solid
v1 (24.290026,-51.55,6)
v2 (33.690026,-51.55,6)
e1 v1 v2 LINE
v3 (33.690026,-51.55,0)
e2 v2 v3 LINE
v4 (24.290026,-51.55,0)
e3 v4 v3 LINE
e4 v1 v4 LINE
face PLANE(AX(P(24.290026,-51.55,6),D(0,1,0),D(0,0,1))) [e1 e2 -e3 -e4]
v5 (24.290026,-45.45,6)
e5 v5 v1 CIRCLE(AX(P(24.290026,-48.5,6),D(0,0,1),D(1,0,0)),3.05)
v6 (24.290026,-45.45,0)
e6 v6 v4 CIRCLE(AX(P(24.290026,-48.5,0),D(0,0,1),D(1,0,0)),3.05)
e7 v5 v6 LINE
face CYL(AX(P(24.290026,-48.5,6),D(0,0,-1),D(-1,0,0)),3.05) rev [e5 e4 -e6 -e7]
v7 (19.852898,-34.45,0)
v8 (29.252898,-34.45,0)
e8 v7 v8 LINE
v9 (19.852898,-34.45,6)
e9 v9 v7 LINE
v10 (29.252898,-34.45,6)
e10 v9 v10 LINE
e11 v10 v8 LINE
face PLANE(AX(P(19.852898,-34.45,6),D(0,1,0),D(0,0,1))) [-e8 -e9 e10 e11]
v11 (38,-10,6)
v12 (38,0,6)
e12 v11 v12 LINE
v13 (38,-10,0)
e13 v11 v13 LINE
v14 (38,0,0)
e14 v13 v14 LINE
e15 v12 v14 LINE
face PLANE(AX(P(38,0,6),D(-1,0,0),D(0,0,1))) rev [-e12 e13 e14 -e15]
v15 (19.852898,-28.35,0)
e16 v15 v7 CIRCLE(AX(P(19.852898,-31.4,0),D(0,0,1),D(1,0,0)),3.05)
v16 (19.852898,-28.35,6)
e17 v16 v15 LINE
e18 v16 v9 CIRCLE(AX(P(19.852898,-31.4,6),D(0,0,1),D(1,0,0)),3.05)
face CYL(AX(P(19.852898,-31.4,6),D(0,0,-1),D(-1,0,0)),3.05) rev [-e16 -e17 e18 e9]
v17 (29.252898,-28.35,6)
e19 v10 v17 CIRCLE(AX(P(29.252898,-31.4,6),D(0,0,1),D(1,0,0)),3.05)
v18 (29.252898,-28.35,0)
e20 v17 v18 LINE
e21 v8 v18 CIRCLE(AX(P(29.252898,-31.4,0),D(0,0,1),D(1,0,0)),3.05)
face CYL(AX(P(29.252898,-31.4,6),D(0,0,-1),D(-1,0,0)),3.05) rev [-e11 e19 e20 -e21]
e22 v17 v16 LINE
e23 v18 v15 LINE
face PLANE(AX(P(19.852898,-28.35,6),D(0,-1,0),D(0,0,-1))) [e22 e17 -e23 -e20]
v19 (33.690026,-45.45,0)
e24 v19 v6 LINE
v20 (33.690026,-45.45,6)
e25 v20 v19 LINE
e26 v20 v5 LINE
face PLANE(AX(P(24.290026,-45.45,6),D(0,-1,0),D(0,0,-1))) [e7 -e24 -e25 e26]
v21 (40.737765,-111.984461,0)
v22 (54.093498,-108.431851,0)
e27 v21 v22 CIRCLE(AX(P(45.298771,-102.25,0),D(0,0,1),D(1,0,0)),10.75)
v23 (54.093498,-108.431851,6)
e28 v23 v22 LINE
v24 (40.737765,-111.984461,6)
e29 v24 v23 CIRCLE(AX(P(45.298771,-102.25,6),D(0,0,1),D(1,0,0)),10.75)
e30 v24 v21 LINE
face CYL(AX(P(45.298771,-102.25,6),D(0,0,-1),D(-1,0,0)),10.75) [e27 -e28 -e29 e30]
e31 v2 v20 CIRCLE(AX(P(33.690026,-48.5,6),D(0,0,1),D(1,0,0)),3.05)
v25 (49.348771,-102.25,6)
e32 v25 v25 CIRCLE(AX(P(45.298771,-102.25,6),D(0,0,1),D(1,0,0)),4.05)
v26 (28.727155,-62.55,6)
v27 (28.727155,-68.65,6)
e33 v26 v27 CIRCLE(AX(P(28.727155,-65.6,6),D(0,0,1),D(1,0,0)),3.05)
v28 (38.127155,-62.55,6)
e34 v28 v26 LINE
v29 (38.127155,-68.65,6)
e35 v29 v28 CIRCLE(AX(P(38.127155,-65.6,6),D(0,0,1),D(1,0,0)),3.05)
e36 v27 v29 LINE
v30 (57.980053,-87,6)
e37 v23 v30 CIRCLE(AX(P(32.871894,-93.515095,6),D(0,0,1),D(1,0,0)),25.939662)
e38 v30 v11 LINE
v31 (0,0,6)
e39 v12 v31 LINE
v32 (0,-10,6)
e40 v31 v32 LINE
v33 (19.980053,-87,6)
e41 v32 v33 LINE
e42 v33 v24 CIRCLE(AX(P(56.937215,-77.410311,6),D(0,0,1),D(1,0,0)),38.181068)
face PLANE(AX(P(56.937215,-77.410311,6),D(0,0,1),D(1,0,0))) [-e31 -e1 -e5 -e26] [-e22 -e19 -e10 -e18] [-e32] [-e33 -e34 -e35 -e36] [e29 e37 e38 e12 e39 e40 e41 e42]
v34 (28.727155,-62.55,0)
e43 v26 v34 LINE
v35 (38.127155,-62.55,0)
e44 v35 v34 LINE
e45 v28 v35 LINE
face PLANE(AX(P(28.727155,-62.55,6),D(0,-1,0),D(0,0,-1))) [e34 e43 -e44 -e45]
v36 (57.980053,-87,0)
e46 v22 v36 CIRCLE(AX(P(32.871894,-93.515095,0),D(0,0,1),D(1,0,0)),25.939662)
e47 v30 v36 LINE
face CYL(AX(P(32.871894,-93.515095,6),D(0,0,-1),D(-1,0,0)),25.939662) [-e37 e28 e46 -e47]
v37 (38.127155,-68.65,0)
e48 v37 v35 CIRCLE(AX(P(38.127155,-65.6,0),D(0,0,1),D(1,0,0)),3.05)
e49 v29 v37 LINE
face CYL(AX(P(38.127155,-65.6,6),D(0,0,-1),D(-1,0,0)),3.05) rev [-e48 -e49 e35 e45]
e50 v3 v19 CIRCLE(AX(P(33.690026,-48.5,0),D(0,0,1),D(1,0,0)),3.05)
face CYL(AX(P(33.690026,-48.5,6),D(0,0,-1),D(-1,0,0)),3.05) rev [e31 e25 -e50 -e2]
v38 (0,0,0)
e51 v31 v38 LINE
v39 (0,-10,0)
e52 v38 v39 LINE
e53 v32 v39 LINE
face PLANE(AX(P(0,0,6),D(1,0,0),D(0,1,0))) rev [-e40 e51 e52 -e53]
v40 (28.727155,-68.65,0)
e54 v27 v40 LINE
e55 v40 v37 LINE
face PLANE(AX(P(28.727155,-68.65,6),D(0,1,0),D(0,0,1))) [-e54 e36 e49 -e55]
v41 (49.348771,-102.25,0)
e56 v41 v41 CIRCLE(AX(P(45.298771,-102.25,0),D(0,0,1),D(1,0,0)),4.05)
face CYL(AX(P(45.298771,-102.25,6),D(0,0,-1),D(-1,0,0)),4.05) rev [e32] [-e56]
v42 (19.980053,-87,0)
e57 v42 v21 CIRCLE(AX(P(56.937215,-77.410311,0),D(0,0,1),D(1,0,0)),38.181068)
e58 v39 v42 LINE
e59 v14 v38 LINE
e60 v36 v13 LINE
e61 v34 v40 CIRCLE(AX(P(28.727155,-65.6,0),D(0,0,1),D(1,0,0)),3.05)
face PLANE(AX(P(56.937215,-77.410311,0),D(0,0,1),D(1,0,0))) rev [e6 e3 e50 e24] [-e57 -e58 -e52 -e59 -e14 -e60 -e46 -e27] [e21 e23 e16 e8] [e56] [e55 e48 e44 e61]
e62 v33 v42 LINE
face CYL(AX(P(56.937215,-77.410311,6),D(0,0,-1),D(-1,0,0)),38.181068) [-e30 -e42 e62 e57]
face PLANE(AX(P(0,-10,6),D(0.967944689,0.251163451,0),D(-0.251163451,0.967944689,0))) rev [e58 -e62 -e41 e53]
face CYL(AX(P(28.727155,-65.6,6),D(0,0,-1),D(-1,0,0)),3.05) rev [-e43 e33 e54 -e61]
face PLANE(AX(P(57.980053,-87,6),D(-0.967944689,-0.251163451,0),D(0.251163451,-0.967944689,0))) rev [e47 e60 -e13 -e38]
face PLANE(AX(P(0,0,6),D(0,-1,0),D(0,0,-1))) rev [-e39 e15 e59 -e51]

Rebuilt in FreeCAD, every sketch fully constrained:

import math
import FreeCAD as App
import Part
import Sketcher
from FreeCAD import Vector

doc = App.newDocument("Part")
body = doc.addObject("PartDesign::Body", "Body")

# Sketch on XY plane
sketch1 = body.newObject("Sketcher::SketchObject", "Sketch")
sketch1.AttachmentSupport = (doc.getObject("XY_Plane"), [""])
sketch1.MapMode = "FlatFace"
sketch1.addGeometry([
    Part.LineSegment(Vector(38, 0, 0), Vector(0, 0, 0)),  # 0
    Part.LineSegment(Vector(0, 0, 0), Vector(0, -10, 0)),  # 1
    Part.LineSegment(Vector(0, -10, 0), Vector(20, -87, 0)),  # 2
    Part.ArcOfCircle(Part.Circle(Vector(56.9, -77.4, 0), Vector(0, 0, 1), 38.2), math.radians(-165), math.radians(-115)),  # 3
    Part.ArcOfCircle(Part.Circle(Vector(45.3, -102.2, 0), Vector(0, 0, 1), 10.8), math.radians(-115), math.radians(-35)),  # 4
    Part.ArcOfCircle(Part.Circle(Vector(32.9, -93.5, 0), Vector(0, 0, 1), 25.9), math.radians(-35), math.radians(15)),  # 5
    Part.LineSegment(Vector(58, -87, 0), Vector(38, -10, 0)),  # 6
    Part.LineSegment(Vector(38, -10, 0), Vector(38, 0, 0)),  # 7
    Part.Circle(Vector(45.3, -102.2, 0), Vector(0, 0, 1), 4),  # 8
    Part.LineSegment(Vector(28.7, -62.5, 0), Vector(38.1, -62.5, 0)),  # 9
    Part.ArcOfCircle(Part.Circle(Vector(38.1, -65.6, 0), Vector(0, 0, 1), 3), math.radians(-90), math.radians(90)),  # 10
    Part.LineSegment(Vector(38.1, -68.7, 0), Vector(28.7, -68.7, 0)),  # 11
    Part.ArcOfCircle(Part.Circle(Vector(28.7, -65.6, 0), Vector(0, 0, 1), 3), math.radians(90), math.radians(270)),  # 12
    Part.LineSegment(Vector(24.3, -45.5, 0), Vector(33.7, -45.5, 0)),  # 13
    Part.ArcOfCircle(Part.Circle(Vector(33.7, -48.5, 0), Vector(0, 0, 1), 3), math.radians(-90), math.radians(90)),  # 14
    Part.LineSegment(Vector(33.7, -51.5, 0), Vector(24.3, -51.5, 0)),  # 15
    Part.ArcOfCircle(Part.Circle(Vector(24.3, -48.5, 0), Vector(0, 0, 1), 3), math.radians(90), math.radians(270)),  # 16
    Part.LineSegment(Vector(19.9, -28.4, 0), Vector(29.3, -28.4, 0)),  # 17
    Part.ArcOfCircle(Part.Circle(Vector(29.3, -31.4, 0), Vector(0, 0, 1), 3), math.radians(-90), math.radians(90)),  # 18
    Part.LineSegment(Vector(29.3, -34.5, 0), Vector(19.9, -34.5, 0)),  # 19
    Part.ArcOfCircle(Part.Circle(Vector(19.9, -31.4, 0), Vector(0, 0, 1), 3), math.radians(90), math.radians(270)),  # 20
], False)
sketch1.addConstraint([
    Sketcher.Constraint("Coincident", 0, 2, 1, 1),
    Sketcher.Constraint("Coincident", 1, 2, 2, 1),
    Sketcher.Constraint("Tangent", 2, 2, 3, 1),
    Sketcher.Constraint("Tangent", 3, 2, 4, 1),
    Sketcher.Constraint("Tangent", 4, 2, 5, 1),
    Sketcher.Constraint("Tangent", 5, 2, 6, 1),
    Sketcher.Constraint("Coincident", 6, 2, 7, 1),
    Sketcher.Constraint("Coincident", 7, 2, 0, 1),
    Sketcher.Constraint("Tangent", 9, 2, 10, 2),
    Sketcher.Constraint("Tangent", 10, 1, 11, 1),
    Sketcher.Constraint("Tangent", 11, 2, 12, 2),
    Sketcher.Constraint("Tangent", 12, 1, 9, 1),
    Sketcher.Constraint("Tangent", 13, 2, 14, 2),
    Sketcher.Constraint("Tangent", 14, 1, 15, 1),
    Sketcher.Constraint("Tangent", 15, 2, 16, 2),
    Sketcher.Constraint("Tangent", 16, 1, 13, 1),
    Sketcher.Constraint("Tangent", 17, 2, 18, 2),
    Sketcher.Constraint("Tangent", 18, 1, 19, 1),
    Sketcher.Constraint("Tangent", 19, 2, 20, 2),
    Sketcher.Constraint("Tangent", 20, 1, 17, 1),
    Sketcher.Constraint("Horizontal", 0),
    Sketcher.Constraint("Vertical", 1),
    Sketcher.Constraint("Vertical", 7),
    Sketcher.Constraint("Horizontal", 9),
    Sketcher.Constraint("Horizontal", 11),
    Sketcher.Constraint("Horizontal", 13),
    Sketcher.Constraint("Horizontal", 15),
    Sketcher.Constraint("Horizontal", 17),
    Sketcher.Constraint("Horizontal", 19),
    Sketcher.Constraint("Coincident", 0, 2, -1, 1),
    Sketcher.Constraint("Coincident", 8, 3, 4, 3),
    Sketcher.Constraint("Equal", 12, 14),
    Sketcher.Constraint("Equal", 16, 18),
    Sketcher.Constraint("Parallel", 2, 6),
    Sketcher.Constraint("Horizontal", 2, 2, 5, 2),
    Sketcher.Constraint("Horizontal", 1, 2, 6, 2),
    Sketcher.Constraint("Equal", 11, 13),
    Sketcher.Constraint("Equal", 15, 17),
    Sketcher.Constraint("Diameter", 8, 8.1),
    Sketcher.Constraint("DistanceX", 0, 2, 0, 1, 38.0),
    Sketcher.Constraint("DistanceY", 1, 2, 1, 1, 10.0),
    Sketcher.Constraint("Radius", 4, 10.75),
    Sketcher.Constraint("Radius", 10, 3.05),
    Sketcher.Constraint("DistanceX", 9, 1, 9, 2, 9.4),
    Sketcher.Constraint("DistanceY", 2, 2, -1, 1, 87.0),
    Sketcher.Constraint("DistanceY", 9, 2, 14, 1, 11.0),
    Sketcher.Constraint("DistanceY", 13, 2, 18, 1, 11.0),
    Sketcher.Constraint("DistanceY", 10, 3, -1, 1, 65.6),
    Sketcher.Constraint("Distance", 2, 79.55),
    Sketcher.Constraint("DistanceY", 4, 3, -1, 1, 102.25),
    Sketcher.Constraint("Radius", 3, 38.181068),
    Sketcher.Constraint("DistanceX", 10, 3, 3, 3, 18.81006),
    Sketcher.Constraint("DistanceX", 14, 3, 10, 3, 4.437129),
    Sketcher.Constraint("DistanceX", 18, 3, 14, 3, 4.437129),
])
pad1 = body.newObject("PartDesign::Pad", "Pad")
pad1.Profile = sketch1
pad1.Length = 6

doc.recompute()
